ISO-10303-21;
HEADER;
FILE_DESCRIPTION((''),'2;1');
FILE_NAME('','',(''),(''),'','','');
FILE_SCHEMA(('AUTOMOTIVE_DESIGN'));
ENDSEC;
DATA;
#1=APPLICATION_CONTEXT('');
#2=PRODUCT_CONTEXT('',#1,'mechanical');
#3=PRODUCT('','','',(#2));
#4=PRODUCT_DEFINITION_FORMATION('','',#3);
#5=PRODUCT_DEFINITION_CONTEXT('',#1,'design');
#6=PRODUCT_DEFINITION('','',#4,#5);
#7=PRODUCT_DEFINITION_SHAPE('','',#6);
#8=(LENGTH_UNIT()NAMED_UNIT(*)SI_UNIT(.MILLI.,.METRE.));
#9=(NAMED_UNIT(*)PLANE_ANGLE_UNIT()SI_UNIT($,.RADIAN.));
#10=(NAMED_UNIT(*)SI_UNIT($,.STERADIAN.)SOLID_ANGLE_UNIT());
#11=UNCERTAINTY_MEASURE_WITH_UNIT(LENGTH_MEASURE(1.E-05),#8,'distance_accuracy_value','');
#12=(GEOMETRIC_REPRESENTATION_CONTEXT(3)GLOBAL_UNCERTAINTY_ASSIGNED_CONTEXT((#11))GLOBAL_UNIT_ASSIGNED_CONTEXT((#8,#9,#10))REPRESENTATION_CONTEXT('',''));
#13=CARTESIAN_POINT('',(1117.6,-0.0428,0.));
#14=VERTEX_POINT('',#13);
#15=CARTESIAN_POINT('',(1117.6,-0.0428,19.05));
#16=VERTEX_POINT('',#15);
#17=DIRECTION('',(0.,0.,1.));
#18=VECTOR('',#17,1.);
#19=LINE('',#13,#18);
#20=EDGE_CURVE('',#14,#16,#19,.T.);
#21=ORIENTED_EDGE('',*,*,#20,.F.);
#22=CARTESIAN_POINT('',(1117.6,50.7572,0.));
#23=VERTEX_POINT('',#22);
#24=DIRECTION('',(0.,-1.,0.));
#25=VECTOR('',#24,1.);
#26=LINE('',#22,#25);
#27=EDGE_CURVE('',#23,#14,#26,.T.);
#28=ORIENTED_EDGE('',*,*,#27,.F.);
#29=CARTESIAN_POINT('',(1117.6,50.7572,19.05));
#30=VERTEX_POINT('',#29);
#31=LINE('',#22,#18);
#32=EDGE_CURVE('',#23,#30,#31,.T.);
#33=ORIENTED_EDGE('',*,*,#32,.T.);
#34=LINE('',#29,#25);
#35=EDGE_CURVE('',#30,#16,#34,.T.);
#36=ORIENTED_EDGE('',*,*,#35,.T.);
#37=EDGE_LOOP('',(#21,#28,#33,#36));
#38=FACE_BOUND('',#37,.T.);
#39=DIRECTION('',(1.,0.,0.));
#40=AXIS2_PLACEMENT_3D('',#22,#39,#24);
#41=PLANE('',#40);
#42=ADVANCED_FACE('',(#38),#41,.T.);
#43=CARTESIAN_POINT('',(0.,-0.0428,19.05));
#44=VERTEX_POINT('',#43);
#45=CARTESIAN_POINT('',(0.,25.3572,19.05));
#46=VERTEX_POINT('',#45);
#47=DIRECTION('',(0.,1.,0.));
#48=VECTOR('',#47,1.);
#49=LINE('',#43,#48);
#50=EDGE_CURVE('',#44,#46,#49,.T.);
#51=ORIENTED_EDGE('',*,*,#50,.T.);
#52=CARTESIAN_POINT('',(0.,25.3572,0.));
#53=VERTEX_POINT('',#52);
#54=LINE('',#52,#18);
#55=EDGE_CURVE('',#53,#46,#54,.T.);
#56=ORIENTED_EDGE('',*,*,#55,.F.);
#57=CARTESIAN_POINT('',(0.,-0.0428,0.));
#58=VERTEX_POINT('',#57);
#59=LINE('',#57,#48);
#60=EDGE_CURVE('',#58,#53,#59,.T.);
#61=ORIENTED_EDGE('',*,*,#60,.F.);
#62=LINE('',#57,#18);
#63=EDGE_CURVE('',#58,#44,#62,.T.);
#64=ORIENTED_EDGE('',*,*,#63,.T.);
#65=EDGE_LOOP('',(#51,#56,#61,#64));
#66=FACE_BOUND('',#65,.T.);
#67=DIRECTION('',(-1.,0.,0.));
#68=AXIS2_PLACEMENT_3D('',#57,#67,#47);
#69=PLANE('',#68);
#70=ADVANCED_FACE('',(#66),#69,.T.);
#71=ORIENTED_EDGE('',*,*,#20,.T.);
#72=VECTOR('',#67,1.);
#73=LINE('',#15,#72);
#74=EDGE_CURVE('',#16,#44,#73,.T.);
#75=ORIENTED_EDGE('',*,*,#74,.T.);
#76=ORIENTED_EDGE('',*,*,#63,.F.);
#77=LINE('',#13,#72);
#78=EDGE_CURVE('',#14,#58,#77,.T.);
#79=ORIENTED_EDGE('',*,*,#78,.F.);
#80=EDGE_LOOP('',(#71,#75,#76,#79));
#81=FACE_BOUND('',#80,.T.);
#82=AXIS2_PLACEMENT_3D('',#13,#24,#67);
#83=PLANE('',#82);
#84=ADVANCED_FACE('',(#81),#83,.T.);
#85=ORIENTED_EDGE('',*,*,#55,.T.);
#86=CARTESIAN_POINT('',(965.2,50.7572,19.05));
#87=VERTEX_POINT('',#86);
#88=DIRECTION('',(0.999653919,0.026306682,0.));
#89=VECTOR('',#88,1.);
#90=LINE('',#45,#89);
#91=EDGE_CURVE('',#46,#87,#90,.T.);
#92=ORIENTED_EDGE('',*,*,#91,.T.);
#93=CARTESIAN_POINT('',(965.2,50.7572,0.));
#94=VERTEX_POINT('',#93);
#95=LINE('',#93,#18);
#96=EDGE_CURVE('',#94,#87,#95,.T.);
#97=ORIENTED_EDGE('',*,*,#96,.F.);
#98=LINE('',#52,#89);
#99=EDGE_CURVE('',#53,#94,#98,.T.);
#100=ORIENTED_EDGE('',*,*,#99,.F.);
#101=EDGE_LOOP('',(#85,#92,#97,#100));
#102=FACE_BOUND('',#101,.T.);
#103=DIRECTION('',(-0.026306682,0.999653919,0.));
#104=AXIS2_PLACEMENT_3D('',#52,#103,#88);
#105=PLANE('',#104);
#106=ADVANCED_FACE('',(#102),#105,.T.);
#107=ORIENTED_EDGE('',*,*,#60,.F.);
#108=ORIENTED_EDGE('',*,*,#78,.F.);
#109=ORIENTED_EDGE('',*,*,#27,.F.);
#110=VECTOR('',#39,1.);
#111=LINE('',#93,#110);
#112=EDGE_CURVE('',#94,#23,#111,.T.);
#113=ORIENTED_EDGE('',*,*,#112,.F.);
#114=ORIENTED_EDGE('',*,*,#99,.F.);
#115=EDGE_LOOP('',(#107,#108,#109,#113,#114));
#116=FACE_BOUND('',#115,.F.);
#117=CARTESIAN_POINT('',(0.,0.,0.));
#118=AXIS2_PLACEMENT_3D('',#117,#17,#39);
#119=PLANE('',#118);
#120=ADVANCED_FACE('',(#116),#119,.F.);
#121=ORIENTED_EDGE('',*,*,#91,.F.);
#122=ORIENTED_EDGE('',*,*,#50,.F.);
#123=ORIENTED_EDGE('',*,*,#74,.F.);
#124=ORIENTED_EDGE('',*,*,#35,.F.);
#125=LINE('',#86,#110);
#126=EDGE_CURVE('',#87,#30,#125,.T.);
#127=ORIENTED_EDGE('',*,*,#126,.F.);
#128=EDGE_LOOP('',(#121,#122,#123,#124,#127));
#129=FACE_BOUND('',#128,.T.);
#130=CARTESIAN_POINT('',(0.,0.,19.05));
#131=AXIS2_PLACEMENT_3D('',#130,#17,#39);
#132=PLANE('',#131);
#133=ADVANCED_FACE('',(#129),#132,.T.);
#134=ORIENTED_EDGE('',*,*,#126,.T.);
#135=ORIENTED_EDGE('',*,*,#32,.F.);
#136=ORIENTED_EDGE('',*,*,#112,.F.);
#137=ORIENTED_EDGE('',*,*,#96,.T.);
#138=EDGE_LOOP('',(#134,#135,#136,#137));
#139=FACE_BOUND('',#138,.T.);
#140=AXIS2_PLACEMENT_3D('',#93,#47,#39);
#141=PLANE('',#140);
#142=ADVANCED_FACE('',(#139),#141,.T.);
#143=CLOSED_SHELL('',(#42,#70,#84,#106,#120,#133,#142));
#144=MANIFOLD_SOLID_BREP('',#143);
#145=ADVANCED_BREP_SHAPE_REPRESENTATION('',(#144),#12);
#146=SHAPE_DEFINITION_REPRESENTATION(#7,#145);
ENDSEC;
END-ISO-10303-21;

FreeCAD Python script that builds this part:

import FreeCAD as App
import Part
import Sketcher
Q = App.Units.Quantity

doc = App.newDocument("Part")
body = doc.addObject("PartDesign::Body", "Body")

sketch1 = body.newObject("Sketcher::SketchObject", "Sketch")
sketch1.AttachmentSupport = (doc.getObject("XY_Plane"), [""])
sketch1.MapMode = "FlatFace"
sketch1.addGeometry([
    Part.LineSegment(App.Vector(1118, 51, 0), App.Vector(965, 51, 0)),
    Part.LineSegment(App.Vector(965, 51, 0), App.Vector(0, 25, 0)),
    Part.LineSegment(App.Vector(0, 25, 0), App.Vector(0, 0, 0)),
    Part.LineSegment(App.Vector(0, 0, 0), App.Vector(1118, 0, 0)),
    Part.LineSegment(App.Vector(1118, 0, 0), App.Vector(1118, 51, 0)),
], False)
sketch1.addConstraint([
    Sketcher.Constraint("Coincident", 0, 2, 1, 1),
    Sketcher.Constraint("Coincident", 1, 2, 2, 1),
    Sketcher.Constraint("Coincident", 2, 2, 3, 1),
    Sketcher.Constraint("Coincident", 3, 2, 4, 1),
    Sketcher.Constraint("Coincident", 4, 2, 0, 1),
    Sketcher.Constraint("Horizontal", 0),
    Sketcher.Constraint("Vertical", 2),
    Sketcher.Constraint("Horizontal", 3),
    Sketcher.Constraint("Vertical", 4),
    Sketcher.Constraint("PointOnObject", 1, 2, -2),
    Sketcher.Constraint("DistanceX", 0, 2, 0, 1, Q("6 in")),
    Sketcher.Constraint("DistanceX", 3, 1, 3, 2, Q("44 in")),
    Sketcher.Constraint("DistanceY", 2, 2, 2, 1, Q("1 in")),
    Sketcher.Constraint("DistanceY", 4, 1, 4, 2, Q("2 in")),
    Sketcher.Constraint("DistanceY", -1, 1, 0, 2, 50.7572),
])
pad1 = body.newObject("PartDesign::Pad", "Pad")
pad1.Profile = sketch1
pad1.Length = Q("0.75 in")

doc.recompute()
